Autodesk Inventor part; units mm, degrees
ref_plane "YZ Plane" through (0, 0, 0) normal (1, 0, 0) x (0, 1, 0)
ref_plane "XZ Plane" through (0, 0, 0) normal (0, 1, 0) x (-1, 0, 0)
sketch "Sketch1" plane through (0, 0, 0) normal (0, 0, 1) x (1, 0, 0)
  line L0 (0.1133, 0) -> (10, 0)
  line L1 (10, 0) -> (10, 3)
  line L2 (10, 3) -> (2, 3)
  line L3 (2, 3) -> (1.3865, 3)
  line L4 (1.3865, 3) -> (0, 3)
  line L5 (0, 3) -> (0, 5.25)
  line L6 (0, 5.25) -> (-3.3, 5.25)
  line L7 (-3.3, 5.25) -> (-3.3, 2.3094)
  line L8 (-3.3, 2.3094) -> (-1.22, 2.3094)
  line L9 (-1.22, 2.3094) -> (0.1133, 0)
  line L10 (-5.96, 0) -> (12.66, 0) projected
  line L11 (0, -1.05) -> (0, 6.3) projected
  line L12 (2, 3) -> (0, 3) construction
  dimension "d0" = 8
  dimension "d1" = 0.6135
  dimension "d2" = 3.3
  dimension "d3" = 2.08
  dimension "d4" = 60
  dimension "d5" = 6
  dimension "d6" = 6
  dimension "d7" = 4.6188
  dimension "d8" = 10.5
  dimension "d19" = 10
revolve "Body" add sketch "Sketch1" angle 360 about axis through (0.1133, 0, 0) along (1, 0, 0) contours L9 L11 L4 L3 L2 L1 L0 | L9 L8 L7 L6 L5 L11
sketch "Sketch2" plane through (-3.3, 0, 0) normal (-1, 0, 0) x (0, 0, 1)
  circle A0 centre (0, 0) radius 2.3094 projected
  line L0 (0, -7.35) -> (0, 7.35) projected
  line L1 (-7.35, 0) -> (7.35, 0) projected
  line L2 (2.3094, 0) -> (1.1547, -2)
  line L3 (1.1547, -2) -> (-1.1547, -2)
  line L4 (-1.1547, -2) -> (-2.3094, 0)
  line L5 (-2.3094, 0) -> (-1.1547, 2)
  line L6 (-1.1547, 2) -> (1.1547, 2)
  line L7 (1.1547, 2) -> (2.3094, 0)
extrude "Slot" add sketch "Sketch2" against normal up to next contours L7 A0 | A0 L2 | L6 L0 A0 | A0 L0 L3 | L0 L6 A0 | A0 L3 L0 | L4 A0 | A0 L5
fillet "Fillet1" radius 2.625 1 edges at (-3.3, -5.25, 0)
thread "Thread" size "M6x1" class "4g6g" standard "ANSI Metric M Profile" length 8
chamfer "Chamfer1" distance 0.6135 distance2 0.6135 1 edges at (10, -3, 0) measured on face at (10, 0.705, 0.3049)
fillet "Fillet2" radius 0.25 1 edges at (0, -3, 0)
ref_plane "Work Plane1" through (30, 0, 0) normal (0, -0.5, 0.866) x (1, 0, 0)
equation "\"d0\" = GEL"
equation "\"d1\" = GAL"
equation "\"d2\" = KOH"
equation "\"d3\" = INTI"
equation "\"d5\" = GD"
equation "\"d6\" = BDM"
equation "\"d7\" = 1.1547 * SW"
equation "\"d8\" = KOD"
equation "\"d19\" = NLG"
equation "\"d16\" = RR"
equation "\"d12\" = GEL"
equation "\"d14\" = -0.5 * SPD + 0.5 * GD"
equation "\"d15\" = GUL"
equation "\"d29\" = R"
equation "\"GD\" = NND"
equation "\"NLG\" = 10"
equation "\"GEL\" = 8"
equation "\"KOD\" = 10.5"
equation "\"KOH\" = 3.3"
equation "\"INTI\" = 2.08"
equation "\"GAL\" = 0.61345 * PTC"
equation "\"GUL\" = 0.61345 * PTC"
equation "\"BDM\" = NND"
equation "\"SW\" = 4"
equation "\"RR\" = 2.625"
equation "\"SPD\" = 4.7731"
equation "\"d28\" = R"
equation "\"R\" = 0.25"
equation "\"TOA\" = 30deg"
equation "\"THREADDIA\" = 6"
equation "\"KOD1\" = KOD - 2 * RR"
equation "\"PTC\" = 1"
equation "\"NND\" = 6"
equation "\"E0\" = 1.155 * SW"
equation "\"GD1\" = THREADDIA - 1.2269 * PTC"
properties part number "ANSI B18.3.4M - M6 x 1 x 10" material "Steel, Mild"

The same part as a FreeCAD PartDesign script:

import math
import FreeCAD as App
import Part
import Sketcher
Q = App.Units.Quantity


def edges_at(feature, points):
    """Names of the edges that pass closest to the given points."""
    edges = feature.Shape.Edges
    near = lambda p: min(range(len(edges)), key=lambda i: edges[i].distToShape(Part.Vertex(*p))[0])
    return sorted({f"Edge{near(p) + 1}" for p in points})

doc = App.newDocument("Part")
body = doc.addObject("PartDesign::Body", "Body")

# Sketch on XY plane
sketch1 = body.newObject("Sketcher::SketchObject", "Sketch")
sketch1.AttachmentSupport = (doc.getObject("XY_Plane"), [""])
sketch1.MapMode = "FlatFace"
sketch1.addGeometry(Part.LineSegment(App.Vector(0.1, 0, 0), App.Vector(10, 0, 0)), False)
sketch1.addGeometry(Part.LineSegment(App.Vector(10, 0, 0), App.Vector(10, 3, 0)), False)
sketch1.addGeometry(Part.LineSegment(App.Vector(10, 3, 0), App.Vector(0, 3, 0)), False)
sketch1.addGeometry(Part.LineSegment(App.Vector(0, 3, 0), App.Vector(0, 5.2, 0)), False)
sketch1.addGeometry(Part.LineSegment(App.Vector(0, 5.2, 0), App.Vector(-3.3, 5.2, 0)), False)
sketch1.addGeometry(Part.LineSegment(App.Vector(-3.3, 5.2, 0), App.Vector(-3.3, 2.3, 0)), False)
sketch1.addGeometry(Part.LineSegment(App.Vector(-3.3, 2.3, 0), App.Vector(-1.2, 2.3, 0)), False)
sketch1.addGeometry(Part.LineSegment(App.Vector(-1.2, 2.3, 0), App.Vector(0.1, 0, 0)), False)
sketch1.addConstraint(Sketcher.Constraint("Coincident", 0, 2, 1, 1))
sketch1.addConstraint(Sketcher.Constraint("Coincident", 1, 2, 2, 1))
sketch1.addConstraint(Sketcher.Constraint("Coincident", 2, 2, 3, 1))
sketch1.addConstraint(Sketcher.Constraint("Coincident", 3, 2, 4, 1))
sketch1.addConstraint(Sketcher.Constraint("Coincident", 4, 2, 5, 1))
sketch1.addConstraint(Sketcher.Constraint("Coincident", 5, 2, 6, 1))
sketch1.addConstraint(Sketcher.Constraint("Coincident", 6, 2, 7, 1))
sketch1.addConstraint(Sketcher.Constraint("Coincident", 7, 2, 0, 1))
sketch1.addConstraint(Sketcher.Constraint("Horizontal", 0))
sketch1.addConstraint(Sketcher.Constraint("Vertical", 1))
sketch1.addConstraint(Sketcher.Constraint("Horizontal", 2))
sketch1.addConstraint(Sketcher.Constraint("Vertical", 3))
sketch1.addConstraint(Sketcher.Constraint("Horizontal", 4))
sketch1.addConstraint(Sketcher.Constraint("Vertical", 5))
sketch1.addConstraint(Sketcher.Constraint("Horizontal", 6))
sketch1.addConstraint(Sketcher.Constraint("PointOnObject", 0, 2, -1))
sketch1.addConstraint(Sketcher.Constraint("PointOnObject", 2, 2, -2))
sketch1.addConstraint(Sketcher.Constraint("DistanceX", 2, 2, 2, 1, Q("10 mm")))
sketch1.addConstraint(Sketcher.Constraint("DistanceX", 4, 2, 4, 1, Q("3.3 mm")))
sketch1.addConstraint(Sketcher.Constraint("DistanceX", 6, 1, 6, 2, Q("2.08 mm")))
sketch1.addConstraint(Sketcher.Constraint("DistanceY", 1, 1, 1, 2, Q("3 mm")))
sketch1.addConstraint(Sketcher.Constraint("Angle", 7, Q("-60.0006 deg")))
sketch1.addConstraint(Sketcher.Constraint("DistanceY", 3, 1, 3, 2, Q("2.25 mm")))
sketch1.addConstraint(Sketcher.Constraint("DistanceX", 0, 1, 0, 2, Q("9.8867 mm")))
revolution = body.newObject("PartDesign::Revolution", "Revolution")
revolution.Profile = sketch1
revolution.ReferenceAxis = (sketch1, ["H_Axis"])
revolution.Angle = 360

# Sketch on YZ plane
sketch2 = body.newObject("Sketcher::SketchObject", "Sketch001")
sketch2.AttachmentSupport = (doc.getObject("YZ_Plane"), [""])
sketch2.MapMode = "FlatFace"
sketch2.AttachmentOffset = App.Placement(App.Vector(0, 0, -3.3), App.Rotation())
sketch2.addGeometry(Part.LineSegment(App.Vector(2, 1.2, 0), App.Vector(0, 2.3, 0)), False)
sketch2.addGeometry(Part.ArcOfCircle(Part.Circle(App.Vector(0, 0, 0), App.Vector(0, 0, 1), 2.3), math.radians(30), math.radians(90)), False)
sketch2.addGeometry(Part.ArcOfCircle(Part.Circle(App.Vector(0, 0, 0), App.Vector(0, 0, 1), 2.3), math.radians(90), math.radians(150)), False)
sketch2.addGeometry(Part.LineSegment(App.Vector(0, 2.3, 0), App.Vector(-2, 1.2, 0)), False)
sketch2.addGeometry(Part.ArcOfCircle(Part.Circle(App.Vector(0, 0, 0), App.Vector(0, 0, 1), 2.3), math.radians(-30), math.radians(30)), False)
sketch2.addGeometry(Part.LineSegment(App.Vector(2, -1.2, 0), App.Vector(2, 1.2, 0)), False)
sketch2.addGeometry(Part.LineSegment(App.Vector(-2, 1.2, 0), App.Vector(-2, -1.2, 0)), False)
sketch2.addGeometry(Part.ArcOfCircle(Part.Circle(App.Vector(0, 0, 0), App.Vector(0, 0, 1), 2.3), math.radians(150), math.radians(210)), False)
sketch2.addGeometry(Part.LineSegment(App.Vector(-2, -1.2, 0), App.Vector(0, -2.3, 0)), False)
sketch2.addGeometry(Part.ArcOfCircle(Part.Circle(App.Vector(0, 0, 0), App.Vector(0, 0, 1), 2.3), math.radians(-150), math.radians(-90)), False)
sketch2.addGeometry(Part.ArcOfCircle(Part.Circle(App.Vector(0, 0, 0), App.Vector(0, 0, 1), 2.3), math.radians(-90), math.radians(-30)), False)
sketch2.addGeometry(Part.LineSegment(App.Vector(0, -2.3, 0), App.Vector(2, -1.2, 0)), False)
sketch2.addConstraint(Sketcher.Constraint("Coincident", 0, 1, 1, 1))
sketch2.addConstraint(Sketcher.Constraint("Coincident", 1, 2, 0, 2))
sketch2.addConstraint(Sketcher.Constraint("Coincident", 2, 1, 3, 1))
sketch2.addConstraint(Sketcher.Constraint("Coincident", 3, 2, 2, 2))
sketch2.addConstraint(Sketcher.Constraint("Coincident", 4, 1, 5, 1))
sketch2.addConstraint(Sketcher.Constraint("Coincident", 5, 2, 4, 2))
sketch2.addConstraint(Sketcher.Constraint("Coincident", 6, 1, 7, 1))
sketch2.addConstraint(Sketcher.Constraint("Coincident", 7, 2, 6, 2))
sketch2.addConstraint(Sketcher.Constraint("Coincident", 8, 1, 9, 1))
sketch2.addConstraint(Sketcher.Constraint("Coincident", 9, 2, 8, 2))
sketch2.addConstraint(Sketcher.Constraint("Coincident", 10, 1, 11, 1))
sketch2.addConstraint(Sketcher.Constraint("Coincident", 11, 2, 10, 2))
sketch2.addConstraint(Sketcher.Constraint("Vertical", 5))
sketch2.addConstraint(Sketcher.Constraint("Vertical", 6))
sketch2.addConstraint(Sketcher.Constraint("Coincident", 1, 3, -1, 1))
sketch2.addConstraint(Sketcher.Constraint("Coincident", 2, 3, -1, 1))
sketch2.addConstraint(Sketcher.Constraint("Coincident", 4, 3, -1, 1))
sketch2.addConstraint(Sketcher.Constraint("Coincident", 7, 3, -1, 1))
sketch2.addConstraint(Sketcher.Constraint("Coincident", 9, 3, -1, 1))
sketch2.addConstraint(Sketcher.Constraint("Coincident", 10, 3, -1, 1))
sketch2.addConstraint(Sketcher.Constraint("Coincident", 2, 1, 1, 2))
sketch2.addConstraint(Sketcher.Constraint("Coincident", 5, 2, 0, 1))
sketch2.addConstraint(Sketcher.Constraint("Coincident", 6, 1, 3, 2))
sketch2.addConstraint(Sketcher.Constraint("Coincident", 8, 1, 7, 2))
sketch2.addConstraint(Sketcher.Constraint("Coincident", 10, 1, 9, 2))
sketch2.addConstraint(Sketcher.Constraint("PointOnObject", 1, 2, -2))
sketch2.addConstraint(Sketcher.Constraint("PointOnObject", 9, 2, -2))
sketch2.addConstraint(Sketcher.Constraint("Parallel", 0, 8))
sketch2.addConstraint(Sketcher.Constraint("Parallel", 3, 11))
sketch2.addConstraint(Sketcher.Constraint("Angle", 0, Q("150 deg")))
sketch2.addConstraint(Sketcher.Constraint("DistanceX", -1, 1, 0, 1, Q("2 mm")))
pad1 = body.newObject("PartDesign::Pad", "Pad")
pad1.Profile = sketch2
pad1.Length = 2.2586
doc.recompute()

fillet = body.newObject("PartDesign::Fillet", "Fillet")
fillet.Base = (pad1, edges_at(pad1, [(-3.3, -5.25, 0)]))
fillet.Radius = 2.625
doc.recompute()

chamfer = body.newObject("PartDesign::Chamfer", "Chamfer")
chamfer.Base = (fillet, edges_at(fillet, [(10, -3, 0)]))
chamfer.ChamferType = "Two distances"
chamfer.Size = 0.6135
chamfer.Size2 = 0.6135
doc.recompute()

fillet2 = body.newObject("PartDesign::Fillet", "Fillet001")
fillet2.Base = (chamfer, edges_at(chamfer, [(0, -3, 0)]))
fillet2.Radius = 0.25

doc.recompute()
